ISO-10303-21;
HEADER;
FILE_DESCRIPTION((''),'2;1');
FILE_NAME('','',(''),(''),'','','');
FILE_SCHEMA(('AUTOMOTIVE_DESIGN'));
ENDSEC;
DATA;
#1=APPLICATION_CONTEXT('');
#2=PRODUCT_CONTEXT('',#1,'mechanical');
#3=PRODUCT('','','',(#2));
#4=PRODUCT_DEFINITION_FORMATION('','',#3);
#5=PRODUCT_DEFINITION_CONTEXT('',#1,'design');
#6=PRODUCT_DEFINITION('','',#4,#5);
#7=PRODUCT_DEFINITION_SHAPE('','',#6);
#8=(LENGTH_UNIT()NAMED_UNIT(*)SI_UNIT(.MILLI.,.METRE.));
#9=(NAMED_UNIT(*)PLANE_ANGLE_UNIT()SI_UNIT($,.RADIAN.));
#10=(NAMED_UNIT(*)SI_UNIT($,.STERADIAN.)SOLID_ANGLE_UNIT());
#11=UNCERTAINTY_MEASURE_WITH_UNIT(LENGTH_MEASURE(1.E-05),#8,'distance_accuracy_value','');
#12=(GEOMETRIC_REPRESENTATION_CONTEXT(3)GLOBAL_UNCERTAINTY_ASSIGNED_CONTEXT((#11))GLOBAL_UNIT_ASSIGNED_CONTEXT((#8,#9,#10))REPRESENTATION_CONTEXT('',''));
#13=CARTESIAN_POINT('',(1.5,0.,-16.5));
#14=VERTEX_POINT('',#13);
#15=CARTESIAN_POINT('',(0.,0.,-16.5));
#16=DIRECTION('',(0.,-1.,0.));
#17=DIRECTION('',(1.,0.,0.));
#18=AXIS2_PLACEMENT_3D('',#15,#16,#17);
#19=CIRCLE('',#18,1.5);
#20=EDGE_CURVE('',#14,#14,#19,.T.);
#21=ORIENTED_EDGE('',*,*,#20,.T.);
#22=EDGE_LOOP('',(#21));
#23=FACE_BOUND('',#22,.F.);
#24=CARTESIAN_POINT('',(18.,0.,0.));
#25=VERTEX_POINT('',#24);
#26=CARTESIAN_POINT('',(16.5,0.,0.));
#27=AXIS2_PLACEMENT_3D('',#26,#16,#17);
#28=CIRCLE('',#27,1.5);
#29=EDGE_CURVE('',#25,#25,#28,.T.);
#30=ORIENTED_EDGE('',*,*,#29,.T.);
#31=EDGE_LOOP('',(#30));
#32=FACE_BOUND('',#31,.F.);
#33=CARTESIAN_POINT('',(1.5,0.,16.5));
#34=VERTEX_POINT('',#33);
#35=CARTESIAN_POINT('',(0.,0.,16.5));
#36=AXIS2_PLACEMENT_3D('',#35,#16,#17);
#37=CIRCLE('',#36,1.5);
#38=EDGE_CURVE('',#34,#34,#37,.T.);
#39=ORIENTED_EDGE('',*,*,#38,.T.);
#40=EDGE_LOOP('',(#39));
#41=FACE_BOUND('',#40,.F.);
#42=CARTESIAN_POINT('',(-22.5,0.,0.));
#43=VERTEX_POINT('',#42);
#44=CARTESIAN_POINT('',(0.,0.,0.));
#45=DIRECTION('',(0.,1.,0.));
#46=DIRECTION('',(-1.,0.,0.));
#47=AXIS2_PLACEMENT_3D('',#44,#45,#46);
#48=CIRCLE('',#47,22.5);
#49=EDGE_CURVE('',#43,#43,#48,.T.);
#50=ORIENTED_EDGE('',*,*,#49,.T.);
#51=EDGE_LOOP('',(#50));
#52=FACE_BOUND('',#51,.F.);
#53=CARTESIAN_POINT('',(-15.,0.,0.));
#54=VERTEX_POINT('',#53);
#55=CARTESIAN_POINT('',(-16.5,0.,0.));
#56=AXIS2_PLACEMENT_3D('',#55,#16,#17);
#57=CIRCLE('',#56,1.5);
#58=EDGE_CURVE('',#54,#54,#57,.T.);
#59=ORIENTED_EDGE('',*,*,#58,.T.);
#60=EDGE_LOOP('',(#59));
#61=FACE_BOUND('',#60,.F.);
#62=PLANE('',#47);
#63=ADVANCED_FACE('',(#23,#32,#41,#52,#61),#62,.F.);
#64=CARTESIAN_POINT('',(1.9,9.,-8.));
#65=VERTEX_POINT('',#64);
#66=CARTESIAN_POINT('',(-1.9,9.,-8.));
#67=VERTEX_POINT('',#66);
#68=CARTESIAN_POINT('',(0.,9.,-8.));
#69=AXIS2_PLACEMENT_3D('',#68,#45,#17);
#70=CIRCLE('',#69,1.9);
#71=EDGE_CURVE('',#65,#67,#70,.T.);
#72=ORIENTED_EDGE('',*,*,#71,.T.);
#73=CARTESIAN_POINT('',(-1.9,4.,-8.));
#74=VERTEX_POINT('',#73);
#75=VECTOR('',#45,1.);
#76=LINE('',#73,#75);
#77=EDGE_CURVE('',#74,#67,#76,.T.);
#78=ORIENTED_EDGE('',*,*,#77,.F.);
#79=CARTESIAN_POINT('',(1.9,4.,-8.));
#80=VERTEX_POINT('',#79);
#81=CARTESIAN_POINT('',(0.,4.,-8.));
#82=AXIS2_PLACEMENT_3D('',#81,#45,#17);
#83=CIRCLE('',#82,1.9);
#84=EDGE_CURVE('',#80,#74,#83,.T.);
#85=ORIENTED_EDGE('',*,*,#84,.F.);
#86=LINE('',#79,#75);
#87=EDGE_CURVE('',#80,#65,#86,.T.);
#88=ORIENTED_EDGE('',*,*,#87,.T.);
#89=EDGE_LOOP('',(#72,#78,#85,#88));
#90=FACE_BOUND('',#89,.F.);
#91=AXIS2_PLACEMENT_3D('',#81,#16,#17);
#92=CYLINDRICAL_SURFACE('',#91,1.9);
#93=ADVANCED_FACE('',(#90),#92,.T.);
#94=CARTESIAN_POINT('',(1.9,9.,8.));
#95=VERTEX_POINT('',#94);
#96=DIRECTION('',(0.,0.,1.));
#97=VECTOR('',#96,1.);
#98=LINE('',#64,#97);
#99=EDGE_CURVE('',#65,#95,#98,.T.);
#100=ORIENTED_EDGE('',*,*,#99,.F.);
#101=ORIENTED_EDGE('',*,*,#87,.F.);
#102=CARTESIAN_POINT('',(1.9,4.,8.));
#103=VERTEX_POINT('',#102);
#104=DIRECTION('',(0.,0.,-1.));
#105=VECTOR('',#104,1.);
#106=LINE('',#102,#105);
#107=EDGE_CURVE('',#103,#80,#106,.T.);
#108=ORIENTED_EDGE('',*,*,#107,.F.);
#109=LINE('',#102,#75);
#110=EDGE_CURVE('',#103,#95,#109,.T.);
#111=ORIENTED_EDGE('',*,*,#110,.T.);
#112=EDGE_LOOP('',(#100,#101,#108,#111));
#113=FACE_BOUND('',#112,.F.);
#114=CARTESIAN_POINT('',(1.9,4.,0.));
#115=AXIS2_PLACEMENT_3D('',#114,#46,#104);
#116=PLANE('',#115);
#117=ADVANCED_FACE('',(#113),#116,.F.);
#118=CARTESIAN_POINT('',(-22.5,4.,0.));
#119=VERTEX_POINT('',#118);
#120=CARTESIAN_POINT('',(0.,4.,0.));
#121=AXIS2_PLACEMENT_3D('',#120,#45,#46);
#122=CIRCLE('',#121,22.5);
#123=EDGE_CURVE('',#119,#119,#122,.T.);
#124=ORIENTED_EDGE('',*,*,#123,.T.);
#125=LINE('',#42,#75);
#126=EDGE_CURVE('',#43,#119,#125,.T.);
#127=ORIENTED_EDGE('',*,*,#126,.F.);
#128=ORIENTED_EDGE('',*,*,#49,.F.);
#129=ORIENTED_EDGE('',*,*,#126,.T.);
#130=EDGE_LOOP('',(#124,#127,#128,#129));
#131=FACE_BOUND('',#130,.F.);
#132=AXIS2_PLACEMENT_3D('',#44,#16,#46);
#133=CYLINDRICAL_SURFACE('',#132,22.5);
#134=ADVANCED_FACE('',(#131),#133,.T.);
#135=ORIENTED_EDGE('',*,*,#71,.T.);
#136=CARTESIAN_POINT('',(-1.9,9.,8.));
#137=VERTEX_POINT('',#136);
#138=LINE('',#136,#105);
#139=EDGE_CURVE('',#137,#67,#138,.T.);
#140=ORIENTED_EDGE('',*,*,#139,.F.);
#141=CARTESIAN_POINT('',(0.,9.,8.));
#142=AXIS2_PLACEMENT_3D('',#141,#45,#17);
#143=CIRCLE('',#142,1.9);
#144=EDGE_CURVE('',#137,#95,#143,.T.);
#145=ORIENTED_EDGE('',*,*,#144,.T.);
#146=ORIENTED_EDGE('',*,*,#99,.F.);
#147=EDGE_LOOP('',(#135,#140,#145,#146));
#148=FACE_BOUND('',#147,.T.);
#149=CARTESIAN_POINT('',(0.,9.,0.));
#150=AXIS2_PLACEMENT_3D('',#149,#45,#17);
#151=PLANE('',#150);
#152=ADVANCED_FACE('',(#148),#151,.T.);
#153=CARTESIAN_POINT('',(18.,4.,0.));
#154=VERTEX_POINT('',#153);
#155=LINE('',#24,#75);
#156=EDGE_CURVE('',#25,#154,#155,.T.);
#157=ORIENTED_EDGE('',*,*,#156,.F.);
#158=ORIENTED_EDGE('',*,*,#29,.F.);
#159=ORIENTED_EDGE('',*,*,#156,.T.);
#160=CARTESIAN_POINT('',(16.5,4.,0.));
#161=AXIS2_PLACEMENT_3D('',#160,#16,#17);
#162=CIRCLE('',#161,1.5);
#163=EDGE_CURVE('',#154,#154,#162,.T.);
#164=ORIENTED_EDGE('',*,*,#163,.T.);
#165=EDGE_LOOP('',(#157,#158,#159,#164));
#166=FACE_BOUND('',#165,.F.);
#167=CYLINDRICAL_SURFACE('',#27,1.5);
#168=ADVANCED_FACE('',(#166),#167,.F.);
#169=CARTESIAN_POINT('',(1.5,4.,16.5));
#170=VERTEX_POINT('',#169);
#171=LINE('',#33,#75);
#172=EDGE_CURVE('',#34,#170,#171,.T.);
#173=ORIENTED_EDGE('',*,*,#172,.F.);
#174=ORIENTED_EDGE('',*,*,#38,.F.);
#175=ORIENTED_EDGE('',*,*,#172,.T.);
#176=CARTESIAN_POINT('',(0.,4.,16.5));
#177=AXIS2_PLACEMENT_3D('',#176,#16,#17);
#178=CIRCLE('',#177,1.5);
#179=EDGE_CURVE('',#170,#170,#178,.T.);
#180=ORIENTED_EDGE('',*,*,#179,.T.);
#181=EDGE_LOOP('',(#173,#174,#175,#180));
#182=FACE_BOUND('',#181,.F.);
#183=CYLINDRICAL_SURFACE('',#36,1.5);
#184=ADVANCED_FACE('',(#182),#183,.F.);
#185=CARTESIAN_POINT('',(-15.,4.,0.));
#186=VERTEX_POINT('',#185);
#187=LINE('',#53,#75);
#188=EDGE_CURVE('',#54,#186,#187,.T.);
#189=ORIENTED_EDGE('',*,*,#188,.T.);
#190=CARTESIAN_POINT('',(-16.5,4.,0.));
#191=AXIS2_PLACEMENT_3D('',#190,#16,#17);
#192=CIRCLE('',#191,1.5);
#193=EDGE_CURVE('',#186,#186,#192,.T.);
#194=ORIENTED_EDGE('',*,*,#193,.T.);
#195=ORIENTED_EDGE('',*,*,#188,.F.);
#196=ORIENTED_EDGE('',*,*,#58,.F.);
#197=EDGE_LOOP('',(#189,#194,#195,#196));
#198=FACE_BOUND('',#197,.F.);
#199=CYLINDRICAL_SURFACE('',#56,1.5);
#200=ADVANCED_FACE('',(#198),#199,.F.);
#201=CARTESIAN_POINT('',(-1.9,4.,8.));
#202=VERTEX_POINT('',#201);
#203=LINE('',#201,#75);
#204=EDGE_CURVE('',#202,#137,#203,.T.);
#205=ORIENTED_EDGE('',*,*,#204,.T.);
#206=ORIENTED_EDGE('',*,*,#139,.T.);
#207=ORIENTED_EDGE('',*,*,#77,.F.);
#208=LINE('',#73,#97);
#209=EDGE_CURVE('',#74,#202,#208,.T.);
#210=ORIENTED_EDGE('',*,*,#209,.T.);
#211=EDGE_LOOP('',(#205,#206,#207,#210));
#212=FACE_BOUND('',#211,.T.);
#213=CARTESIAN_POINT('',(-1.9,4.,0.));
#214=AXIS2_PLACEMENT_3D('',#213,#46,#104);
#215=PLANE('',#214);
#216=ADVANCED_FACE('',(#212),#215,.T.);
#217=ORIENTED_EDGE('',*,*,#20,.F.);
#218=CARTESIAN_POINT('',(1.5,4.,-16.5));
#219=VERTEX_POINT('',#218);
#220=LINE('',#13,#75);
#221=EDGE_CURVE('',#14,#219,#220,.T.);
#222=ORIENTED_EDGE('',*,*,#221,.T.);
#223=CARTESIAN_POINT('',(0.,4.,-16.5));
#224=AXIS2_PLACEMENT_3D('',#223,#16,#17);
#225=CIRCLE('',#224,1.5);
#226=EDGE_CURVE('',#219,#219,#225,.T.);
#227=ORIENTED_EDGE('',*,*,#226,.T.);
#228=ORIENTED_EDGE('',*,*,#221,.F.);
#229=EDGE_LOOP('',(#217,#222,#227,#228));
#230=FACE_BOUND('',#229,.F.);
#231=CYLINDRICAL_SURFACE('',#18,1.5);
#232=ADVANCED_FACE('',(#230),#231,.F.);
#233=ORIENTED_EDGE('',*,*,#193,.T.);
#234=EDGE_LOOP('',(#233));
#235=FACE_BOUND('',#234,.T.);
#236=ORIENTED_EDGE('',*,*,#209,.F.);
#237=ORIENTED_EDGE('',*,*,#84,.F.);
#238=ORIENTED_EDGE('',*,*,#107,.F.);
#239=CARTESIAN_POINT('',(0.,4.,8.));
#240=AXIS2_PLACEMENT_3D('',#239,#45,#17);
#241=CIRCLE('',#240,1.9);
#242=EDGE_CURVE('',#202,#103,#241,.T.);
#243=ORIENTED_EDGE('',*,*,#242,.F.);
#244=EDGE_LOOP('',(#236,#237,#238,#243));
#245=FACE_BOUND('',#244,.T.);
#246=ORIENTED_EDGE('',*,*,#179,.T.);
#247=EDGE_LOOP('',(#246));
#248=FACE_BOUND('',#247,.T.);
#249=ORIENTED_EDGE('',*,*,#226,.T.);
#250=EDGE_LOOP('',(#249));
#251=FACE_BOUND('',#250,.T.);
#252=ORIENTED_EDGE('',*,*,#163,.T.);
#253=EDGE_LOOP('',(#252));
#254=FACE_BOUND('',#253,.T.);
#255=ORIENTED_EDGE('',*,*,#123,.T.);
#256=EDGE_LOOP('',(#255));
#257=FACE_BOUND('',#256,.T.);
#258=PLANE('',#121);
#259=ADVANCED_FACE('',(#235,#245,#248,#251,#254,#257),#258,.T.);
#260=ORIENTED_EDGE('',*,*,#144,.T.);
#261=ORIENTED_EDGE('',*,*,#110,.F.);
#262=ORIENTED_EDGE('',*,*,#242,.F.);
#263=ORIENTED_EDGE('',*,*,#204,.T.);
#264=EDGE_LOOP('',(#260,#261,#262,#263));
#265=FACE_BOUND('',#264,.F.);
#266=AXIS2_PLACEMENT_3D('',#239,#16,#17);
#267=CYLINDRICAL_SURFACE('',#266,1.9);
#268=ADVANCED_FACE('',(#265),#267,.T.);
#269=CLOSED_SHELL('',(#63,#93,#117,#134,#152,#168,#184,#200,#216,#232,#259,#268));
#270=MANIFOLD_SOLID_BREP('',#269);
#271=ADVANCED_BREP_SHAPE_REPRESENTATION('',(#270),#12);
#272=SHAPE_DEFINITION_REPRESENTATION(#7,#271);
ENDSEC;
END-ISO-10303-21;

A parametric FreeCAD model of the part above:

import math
import FreeCAD as App
import Part
import Sketcher
from FreeCAD import Vector
Q = App.Units.Quantity

doc = App.newDocument("Part")
body = doc.addObject("PartDesign::Body", "Body")

sketch1 = doc.addObject("Sketcher::SketchObject", "Sketch")
body.addObject(sketch1)
sketch1.AttachmentSupport = (doc.XZ_Plane, [""])
sketch1.MapMode = "FlatFace"
sketch1.addGeometry(Part.Circle(Vector(0, 0, 0), Vector(0, 0, 1), 22.5), False)
sketch1.addConstraint(Sketcher.Constraint("Coincident", 0, 3, -1, 1))
sketch1.addConstraint(Sketcher.Constraint("Diameter", 0, Q("45 mm")))
pad1 = doc.addObject("PartDesign::Pad", "Pad")
body.addObject(pad1)
pad1.Profile = sketch1
pad1.Length = 4
pad1.Reversed = True

sketch2 = doc.addObject("Sketcher::SketchObject", "Sketch001")
body.addObject(sketch2)
sketch2.AttachmentSupport = (doc.XZ_Plane, [""])
sketch2.MapMode = "FlatFace"
sketch2.AttachmentOffset = App.Placement(Vector(0, 0, -4), App.Rotation())
sketch2.addGeometry(Part.ArcOfCircle(Part.Circle(Vector(0, -8, 0), Vector(0, 0, 1), 1.9), math.radians(180), math.radians(360)), False)
sketch2.addGeometry(Part.LineSegment(Vector(-1.9, -8, 0), Vector(-1.9, 8, 0)), False)
sketch2.addGeometry(Part.ArcOfCircle(Part.Circle(Vector(0, 8, 0), Vector(0, 0, 1), 1.9), math.radians(0), math.radians(180)), False)
sketch2.addGeometry(Part.LineSegment(Vector(1.9, 8, 0), Vector(1.9, -8, 0)), False)
sketch2.addConstraint(Sketcher.Constraint("Tangent", 0, 1, 1, 1))
sketch2.addConstraint(Sketcher.Constraint("Tangent", 1, 2, 2, 2))
sketch2.addConstraint(Sketcher.Constraint("Tangent", 2, 1, 3, 1))
sketch2.addConstraint(Sketcher.Constraint("Tangent", 3, 2, 0, 2))
sketch2.addConstraint(Sketcher.Constraint("Vertical", 1))
sketch2.addConstraint(Sketcher.Constraint("Vertical", 3))
sketch2.addConstraint(Sketcher.Constraint("Symmetric", 0, 3, 2, 3, -1, 1))
sketch2.addConstraint(Sketcher.Constraint("Radius", 0, Q("1.9 mm")))
sketch2.addConstraint(Sketcher.Constraint("DistanceY", 0, 3, -1, 1, Q("8 mm")))
pad2 = doc.addObject("PartDesign::Pad", "Pad001")
body.addObject(pad2)
pad2.Profile = sketch2
pad2.Length = 5
pad2.Reversed = True

sketch3 = doc.addObject("Sketcher::SketchObject", "Sketch002")
body.addObject(sketch3)
sketch3.AttachmentSupport = (doc.XZ_Plane, [""])
sketch3.MapMode = "FlatFace"
sketch3.addGeometry(Part.Circle(Vector(0, 16.5, 0), Vector(0, 0, 1), 1.5), False)
sketch3.addGeometry(Part.Circle(Vector(16.5, 0, 0), Vector(0, 0, 1), 1.5), False)
sketch3.addGeometry(Part.Circle(Vector(-16.5, 0, 0), Vector(0, 0, 1), 1.5), False)
sketch3.addGeometry(Part.Circle(Vector(0, -16.5, 0), Vector(0, 0, 1), 1.5), False)
sketch3.addConstraint(Sketcher.Constraint("Equal", 0, 1))
sketch3.addConstraint(Sketcher.Constraint("Equal", 1, 2))
sketch3.addConstraint(Sketcher.Constraint("Equal", 2, 3))
sketch3.addConstraint(Sketcher.Constraint("Symmetric", 1, 3, 2, 3, -1, 1))
sketch3.addConstraint(Sketcher.Constraint("Symmetric", 0, 3, 3, 3, -1, 1))
sketch3.addConstraint(Sketcher.Constraint("PointOnObject", 0, 3, -2))
sketch3.addConstraint(Sketcher.Constraint("PointOnObject", 1, 3, -1))
sketch3.addConstraint(Sketcher.Constraint("Diameter", 0, Q("3 mm")))
sketch3.addConstraint(Sketcher.Constraint("DistanceX", 2, 3, 1, 3, Q("33 mm")))
sketch3.addConstraint(Sketcher.Constraint("DistanceY", 3, 3, 0, 3, Q("33 mm")))
pocket1 = doc.addObject("PartDesign::Pocket", "Pocket")
body.addObject(pocket1)
pocket1.Profile = sketch3
pocket1.Length = 5

doc.recompute()
